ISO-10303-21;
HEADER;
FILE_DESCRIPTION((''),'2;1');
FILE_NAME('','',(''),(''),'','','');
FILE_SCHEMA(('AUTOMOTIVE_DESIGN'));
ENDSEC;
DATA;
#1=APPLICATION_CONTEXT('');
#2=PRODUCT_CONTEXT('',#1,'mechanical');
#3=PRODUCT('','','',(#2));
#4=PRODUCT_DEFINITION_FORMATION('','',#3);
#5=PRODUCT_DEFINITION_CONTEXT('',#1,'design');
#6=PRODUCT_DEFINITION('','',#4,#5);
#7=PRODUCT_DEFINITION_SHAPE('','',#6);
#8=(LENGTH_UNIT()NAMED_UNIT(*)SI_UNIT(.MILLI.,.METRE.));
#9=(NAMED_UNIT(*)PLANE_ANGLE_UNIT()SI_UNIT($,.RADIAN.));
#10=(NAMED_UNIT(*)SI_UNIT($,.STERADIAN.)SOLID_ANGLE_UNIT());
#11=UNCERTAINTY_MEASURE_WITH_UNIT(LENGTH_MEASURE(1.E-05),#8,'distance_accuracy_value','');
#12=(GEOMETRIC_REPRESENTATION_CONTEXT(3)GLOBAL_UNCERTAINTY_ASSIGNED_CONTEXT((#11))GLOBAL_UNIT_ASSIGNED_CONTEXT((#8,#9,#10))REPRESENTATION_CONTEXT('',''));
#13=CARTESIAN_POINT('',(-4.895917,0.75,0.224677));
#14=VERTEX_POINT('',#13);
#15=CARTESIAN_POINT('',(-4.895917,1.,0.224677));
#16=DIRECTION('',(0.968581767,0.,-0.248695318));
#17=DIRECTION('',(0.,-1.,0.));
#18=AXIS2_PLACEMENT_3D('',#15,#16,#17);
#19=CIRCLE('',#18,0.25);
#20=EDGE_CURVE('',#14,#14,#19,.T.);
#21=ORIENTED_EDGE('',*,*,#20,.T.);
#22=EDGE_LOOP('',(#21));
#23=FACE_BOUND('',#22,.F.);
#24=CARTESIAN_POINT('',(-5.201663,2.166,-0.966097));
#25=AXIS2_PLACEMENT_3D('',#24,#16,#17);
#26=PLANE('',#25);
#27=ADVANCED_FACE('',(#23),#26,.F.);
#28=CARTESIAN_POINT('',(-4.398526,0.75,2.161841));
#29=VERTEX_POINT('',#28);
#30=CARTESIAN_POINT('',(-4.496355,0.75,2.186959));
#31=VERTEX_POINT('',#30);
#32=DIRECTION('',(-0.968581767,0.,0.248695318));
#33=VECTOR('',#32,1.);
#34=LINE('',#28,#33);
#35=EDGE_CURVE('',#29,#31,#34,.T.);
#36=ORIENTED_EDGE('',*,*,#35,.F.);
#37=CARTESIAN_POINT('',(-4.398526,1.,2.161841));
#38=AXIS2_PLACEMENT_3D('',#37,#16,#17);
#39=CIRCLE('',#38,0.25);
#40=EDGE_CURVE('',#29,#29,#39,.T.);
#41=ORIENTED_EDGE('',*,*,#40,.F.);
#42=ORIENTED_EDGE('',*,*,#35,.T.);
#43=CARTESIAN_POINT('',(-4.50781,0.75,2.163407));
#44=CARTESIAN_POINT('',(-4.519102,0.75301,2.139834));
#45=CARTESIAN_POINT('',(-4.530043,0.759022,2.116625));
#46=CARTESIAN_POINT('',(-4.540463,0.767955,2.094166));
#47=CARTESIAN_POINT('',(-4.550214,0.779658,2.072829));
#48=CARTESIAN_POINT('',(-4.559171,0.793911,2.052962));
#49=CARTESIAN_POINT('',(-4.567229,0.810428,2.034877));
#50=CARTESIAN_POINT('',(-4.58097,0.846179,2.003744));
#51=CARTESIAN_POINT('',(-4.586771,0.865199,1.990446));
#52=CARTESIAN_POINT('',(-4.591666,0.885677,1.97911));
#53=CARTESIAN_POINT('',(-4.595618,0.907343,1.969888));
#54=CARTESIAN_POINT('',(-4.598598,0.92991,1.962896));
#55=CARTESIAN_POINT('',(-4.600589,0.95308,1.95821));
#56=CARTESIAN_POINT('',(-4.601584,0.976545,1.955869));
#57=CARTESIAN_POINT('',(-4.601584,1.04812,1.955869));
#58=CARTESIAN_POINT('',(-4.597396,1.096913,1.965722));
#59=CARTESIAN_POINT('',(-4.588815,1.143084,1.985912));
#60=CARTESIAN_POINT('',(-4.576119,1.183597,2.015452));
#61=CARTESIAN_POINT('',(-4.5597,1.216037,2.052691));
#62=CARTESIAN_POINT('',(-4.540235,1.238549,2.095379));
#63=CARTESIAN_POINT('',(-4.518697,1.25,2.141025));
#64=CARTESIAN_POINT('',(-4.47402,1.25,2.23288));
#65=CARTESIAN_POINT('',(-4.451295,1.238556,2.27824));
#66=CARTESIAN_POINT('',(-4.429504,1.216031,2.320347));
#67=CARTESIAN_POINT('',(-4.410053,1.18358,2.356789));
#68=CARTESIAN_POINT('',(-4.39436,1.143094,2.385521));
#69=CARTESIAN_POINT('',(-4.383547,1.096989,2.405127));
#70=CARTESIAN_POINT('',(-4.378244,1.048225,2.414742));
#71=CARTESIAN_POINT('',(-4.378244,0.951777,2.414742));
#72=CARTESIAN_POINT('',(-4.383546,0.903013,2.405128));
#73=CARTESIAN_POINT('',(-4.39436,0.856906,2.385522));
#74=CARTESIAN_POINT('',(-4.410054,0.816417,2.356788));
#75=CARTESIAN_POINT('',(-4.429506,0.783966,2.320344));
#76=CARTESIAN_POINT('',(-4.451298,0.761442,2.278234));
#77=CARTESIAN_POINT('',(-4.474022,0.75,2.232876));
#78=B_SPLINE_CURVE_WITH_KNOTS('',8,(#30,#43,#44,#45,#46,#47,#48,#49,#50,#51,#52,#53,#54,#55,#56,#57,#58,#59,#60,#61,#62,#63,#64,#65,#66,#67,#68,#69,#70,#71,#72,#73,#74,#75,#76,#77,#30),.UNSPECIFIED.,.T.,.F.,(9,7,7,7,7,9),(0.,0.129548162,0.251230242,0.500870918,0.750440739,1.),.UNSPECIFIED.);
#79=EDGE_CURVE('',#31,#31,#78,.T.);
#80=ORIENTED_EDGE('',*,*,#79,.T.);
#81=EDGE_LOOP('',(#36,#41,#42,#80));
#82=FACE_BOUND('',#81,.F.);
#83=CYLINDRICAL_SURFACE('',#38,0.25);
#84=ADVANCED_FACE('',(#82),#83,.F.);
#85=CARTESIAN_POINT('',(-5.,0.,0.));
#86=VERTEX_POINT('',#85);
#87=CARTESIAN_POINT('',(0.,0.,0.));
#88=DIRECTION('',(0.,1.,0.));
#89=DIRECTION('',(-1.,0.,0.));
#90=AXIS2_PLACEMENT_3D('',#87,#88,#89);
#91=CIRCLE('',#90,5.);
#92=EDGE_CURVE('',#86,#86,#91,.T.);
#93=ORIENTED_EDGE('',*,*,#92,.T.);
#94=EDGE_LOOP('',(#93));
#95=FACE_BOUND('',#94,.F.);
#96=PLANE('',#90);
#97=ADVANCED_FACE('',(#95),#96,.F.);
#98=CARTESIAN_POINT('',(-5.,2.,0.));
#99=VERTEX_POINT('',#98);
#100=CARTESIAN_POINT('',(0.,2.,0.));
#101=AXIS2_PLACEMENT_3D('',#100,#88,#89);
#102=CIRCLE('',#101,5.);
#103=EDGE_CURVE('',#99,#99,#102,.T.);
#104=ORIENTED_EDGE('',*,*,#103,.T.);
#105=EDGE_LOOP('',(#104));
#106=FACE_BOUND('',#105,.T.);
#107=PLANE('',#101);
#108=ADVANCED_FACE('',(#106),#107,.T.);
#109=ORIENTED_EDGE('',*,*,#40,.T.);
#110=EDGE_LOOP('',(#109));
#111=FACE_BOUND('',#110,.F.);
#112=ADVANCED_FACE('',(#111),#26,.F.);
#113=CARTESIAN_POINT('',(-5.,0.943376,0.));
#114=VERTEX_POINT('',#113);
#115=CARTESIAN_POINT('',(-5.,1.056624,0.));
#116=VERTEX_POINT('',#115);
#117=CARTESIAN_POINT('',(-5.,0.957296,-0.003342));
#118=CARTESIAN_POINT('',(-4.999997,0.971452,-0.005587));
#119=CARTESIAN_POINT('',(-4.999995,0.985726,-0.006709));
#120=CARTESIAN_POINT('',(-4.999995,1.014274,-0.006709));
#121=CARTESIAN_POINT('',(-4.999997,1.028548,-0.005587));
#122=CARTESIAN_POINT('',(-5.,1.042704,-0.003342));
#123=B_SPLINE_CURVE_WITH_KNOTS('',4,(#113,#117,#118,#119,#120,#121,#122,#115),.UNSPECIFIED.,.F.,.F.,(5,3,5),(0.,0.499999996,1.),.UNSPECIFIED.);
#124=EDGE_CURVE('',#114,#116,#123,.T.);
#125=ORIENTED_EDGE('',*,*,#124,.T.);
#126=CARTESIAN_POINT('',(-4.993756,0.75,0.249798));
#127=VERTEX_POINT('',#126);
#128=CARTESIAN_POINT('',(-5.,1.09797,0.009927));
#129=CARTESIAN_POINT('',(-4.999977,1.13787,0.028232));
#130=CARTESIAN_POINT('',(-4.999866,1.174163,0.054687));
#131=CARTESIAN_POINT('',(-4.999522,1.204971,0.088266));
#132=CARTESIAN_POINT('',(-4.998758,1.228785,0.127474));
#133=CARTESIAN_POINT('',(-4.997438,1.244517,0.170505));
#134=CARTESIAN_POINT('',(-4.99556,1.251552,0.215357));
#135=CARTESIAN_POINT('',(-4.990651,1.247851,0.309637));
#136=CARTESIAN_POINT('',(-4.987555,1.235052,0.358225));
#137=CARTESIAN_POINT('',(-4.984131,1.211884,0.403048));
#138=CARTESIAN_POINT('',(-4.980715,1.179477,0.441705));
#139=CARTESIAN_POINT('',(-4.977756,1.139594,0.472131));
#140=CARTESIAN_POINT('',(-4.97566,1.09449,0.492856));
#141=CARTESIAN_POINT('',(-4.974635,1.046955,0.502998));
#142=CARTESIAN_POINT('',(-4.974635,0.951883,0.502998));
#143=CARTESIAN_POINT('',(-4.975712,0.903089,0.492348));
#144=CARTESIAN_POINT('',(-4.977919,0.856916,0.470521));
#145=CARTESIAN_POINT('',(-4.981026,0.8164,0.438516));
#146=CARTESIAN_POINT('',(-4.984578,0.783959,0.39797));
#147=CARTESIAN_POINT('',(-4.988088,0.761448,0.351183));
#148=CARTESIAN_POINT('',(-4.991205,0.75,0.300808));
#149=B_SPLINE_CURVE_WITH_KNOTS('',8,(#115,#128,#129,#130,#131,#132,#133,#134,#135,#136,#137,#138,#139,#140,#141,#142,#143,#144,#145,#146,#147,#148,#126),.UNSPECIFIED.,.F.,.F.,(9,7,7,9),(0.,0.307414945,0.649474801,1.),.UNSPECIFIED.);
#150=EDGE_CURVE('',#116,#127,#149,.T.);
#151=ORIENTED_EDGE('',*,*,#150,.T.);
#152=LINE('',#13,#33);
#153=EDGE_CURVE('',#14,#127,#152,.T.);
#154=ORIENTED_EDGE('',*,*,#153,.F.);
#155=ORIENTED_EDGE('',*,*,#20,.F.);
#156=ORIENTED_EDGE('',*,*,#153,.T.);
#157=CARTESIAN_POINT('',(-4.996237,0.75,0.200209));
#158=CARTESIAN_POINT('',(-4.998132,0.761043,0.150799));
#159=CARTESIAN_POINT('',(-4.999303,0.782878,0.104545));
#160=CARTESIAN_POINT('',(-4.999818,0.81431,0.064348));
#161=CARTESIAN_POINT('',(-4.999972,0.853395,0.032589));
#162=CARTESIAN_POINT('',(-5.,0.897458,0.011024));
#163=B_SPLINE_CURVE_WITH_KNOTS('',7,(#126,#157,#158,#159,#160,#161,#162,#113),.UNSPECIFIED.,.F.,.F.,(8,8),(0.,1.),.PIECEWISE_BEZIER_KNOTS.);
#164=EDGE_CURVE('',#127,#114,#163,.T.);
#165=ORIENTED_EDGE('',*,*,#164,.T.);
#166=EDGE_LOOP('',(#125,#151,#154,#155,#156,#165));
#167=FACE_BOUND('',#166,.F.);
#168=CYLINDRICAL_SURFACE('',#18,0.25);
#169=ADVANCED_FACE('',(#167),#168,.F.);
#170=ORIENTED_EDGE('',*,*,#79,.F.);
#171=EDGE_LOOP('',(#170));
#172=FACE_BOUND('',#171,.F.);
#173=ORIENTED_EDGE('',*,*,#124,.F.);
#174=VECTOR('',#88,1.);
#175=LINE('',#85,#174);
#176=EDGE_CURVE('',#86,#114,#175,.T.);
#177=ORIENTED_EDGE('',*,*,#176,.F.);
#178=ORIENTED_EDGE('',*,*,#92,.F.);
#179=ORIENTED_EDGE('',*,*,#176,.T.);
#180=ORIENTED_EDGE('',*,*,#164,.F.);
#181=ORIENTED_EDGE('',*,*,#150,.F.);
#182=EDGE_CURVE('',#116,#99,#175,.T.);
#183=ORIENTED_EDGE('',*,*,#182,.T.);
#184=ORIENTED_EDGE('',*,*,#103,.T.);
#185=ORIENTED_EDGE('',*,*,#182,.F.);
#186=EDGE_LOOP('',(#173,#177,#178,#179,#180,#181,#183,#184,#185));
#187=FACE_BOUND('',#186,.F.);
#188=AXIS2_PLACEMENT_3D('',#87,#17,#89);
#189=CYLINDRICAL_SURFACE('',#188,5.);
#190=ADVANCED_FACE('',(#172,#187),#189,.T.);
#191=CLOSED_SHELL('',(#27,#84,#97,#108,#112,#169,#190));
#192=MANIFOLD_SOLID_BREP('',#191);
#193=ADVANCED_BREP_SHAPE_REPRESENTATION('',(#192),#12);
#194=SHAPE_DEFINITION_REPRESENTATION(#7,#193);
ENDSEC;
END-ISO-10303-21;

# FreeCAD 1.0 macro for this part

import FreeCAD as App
import Part
import Sketcher

doc = App.newDocument("Part")
body = doc.addObject("PartDesign::Body", "Body")

# Sketch on XZ plane
sketch1 = body.newObject("Sketcher::SketchObject", "Sketch")
sketch1.AttachmentSupport = (doc.getObject("XZ_Plane"), [""])
sketch1.MapMode = "FlatFace"
sketch1.addGeometry(Part.Circle(App.Vector(0, 0, 0), App.Vector(0, 0, 1), 5), False)
sketch1.addConstraint([
    Sketcher.Constraint("Coincident", 0, 3, -1, 1),
    Sketcher.Constraint("Diameter", 0, 10.0),
])
pad1 = body.newObject("PartDesign::Pad", "Pad")
pad1.Profile = sketch1
pad1.Length = 2
pad1.Reversed = True

# Sketch on an angled plane
sketch2 = body.newObject("Sketcher::SketchObject", "Sketch001")
sketch2.Placement = App.Placement(App.Vector(-5.2036, 2.166, -0.9656), App.Rotation(App.Vector(0, -1, 0), App.Vector(-0.248695318, 0, -0.968581767), App.Vector(0.968581767, 0, -0.248695318), "ZXY"))
sketch2.addGeometry([
    Part.Circle(App.Vector(1.17, -1.23, 0), App.Vector(0, 0, 1), 0.25),
    Part.Circle(App.Vector(1.17, -3.23, 0), App.Vector(0, 0, 1), 0.25),
], False)
sketch2.addConstraint([
    Sketcher.Constraint("Equal", 0, 1),
    Sketcher.Constraint("Vertical", 0, 3, 1, 3),
    Sketcher.Constraint("Diameter", 0, 0.5),
    Sketcher.Constraint("DistanceY", 1, 3, 0, 3, 2.0),
    Sketcher.Constraint("DistanceX", -1, 1, 0, 3, 1.166),
    Sketcher.Constraint("DistanceY", 0, 3, -1, 1, 1.2294),
])
pocket1 = body.newObject("PartDesign::Pocket", "Pocket")
pocket1.Profile = sketch2
pocket1.Length = 2

doc.recompute()
